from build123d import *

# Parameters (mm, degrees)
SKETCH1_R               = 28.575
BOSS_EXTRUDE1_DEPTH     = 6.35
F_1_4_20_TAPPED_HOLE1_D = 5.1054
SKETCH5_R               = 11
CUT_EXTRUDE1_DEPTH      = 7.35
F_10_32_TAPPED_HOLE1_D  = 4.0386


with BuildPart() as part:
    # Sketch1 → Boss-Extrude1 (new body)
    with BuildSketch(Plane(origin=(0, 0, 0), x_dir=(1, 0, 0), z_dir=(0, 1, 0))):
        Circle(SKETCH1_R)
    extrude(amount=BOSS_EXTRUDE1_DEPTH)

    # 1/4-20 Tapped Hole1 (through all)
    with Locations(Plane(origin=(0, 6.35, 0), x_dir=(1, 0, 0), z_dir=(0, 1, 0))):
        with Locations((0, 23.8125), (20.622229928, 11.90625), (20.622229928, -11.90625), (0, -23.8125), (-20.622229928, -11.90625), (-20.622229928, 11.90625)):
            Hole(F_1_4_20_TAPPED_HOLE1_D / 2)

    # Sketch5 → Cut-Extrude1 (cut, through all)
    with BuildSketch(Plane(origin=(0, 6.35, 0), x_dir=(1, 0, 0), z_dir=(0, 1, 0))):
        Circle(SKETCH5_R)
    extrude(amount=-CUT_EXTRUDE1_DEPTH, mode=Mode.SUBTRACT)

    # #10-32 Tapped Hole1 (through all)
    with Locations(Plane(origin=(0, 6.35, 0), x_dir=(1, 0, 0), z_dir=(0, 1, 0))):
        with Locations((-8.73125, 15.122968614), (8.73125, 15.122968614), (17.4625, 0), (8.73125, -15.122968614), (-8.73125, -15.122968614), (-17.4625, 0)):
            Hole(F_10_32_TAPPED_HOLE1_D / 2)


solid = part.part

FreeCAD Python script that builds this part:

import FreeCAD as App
import Part
import Sketcher
Q = App.Units.Quantity

doc = App.newDocument("Part")
params = doc.addObject("Spreadsheet::Sheet", "Params")
for row, (alias, value) in enumerate([
    ("sketch1_diameter", "2.25 in"),
    ("pad1_length", "0.25 in"),
    ("sketch2_diameter", "0.201 in"),
    ("hole_diameter", "0.201 in"),
    ("sketch4_diameter", "0.159 in"),
    ("hole2_diameter", "0.159 in"),
], start=1):
    params.set(f"A{row}", alias)
    params.set(f"B{row}", "=" + value)
    params.setAlias(f"B{row}", alias)

body = doc.addObject("PartDesign::Body", "Body")

sketch1 = doc.addObject("Sketcher::SketchObject", "Sketch")
body.addObject(sketch1)
sketch1.AttachmentSupport = (doc.XZ_Plane, [""])
sketch1.MapMode = "FlatFace"
sketch1.addGeometry(Part.Circle(App.Vector(0, 0, 0), App.Vector(0, 0, 1), 29), False)
sketch1.addConstraint([
    Sketcher.Constraint("Coincident", 0, 3, -1, 1),
    Sketcher.Constraint("Diameter", 0, Q("2.25 in")),
])
sketch1.setExpression("Constraints[1]", "Params.sketch1_diameter")
pad1 = doc.addObject("PartDesign::Pad", "Pad")
body.addObject(pad1)
pad1.Profile = sketch1
pad1.setExpression("Length", "Params.pad1_length")
pad1.Reversed = True

sketch2 = doc.addObject("Sketcher::SketchObject", "Sketch001")
body.addObject(sketch2)
sketch2.AttachmentSupport = (doc.XZ_Plane, [""])
sketch2.MapMode = "FlatFace"
sketch2.AttachmentOffset = App.Placement(App.Vector(0, 0, -0.25 * 25.4), App.Rotation())
sketch2.addGeometry([
    Part.Circle(App.Vector(0, -23.8, 0), App.Vector(0, 0, 1), 2.6),
    Part.Circle(App.Vector(20.6, -11.9, 0), App.Vector(0, 0, 1), 2.6),
    Part.Circle(App.Vector(20.6, 11.9, 0), App.Vector(0, 0, 1), 2.6),
    Part.Circle(App.Vector(0, 23.8, 0), App.Vector(0, 0, 1), 2.6),
    Part.Circle(App.Vector(-20.6, 11.9, 0), App.Vector(0, 0, 1), 2.6),
    Part.Circle(App.Vector(-20.6, -11.9, 0), App.Vector(0, 0, 1), 2.6),
], False)
sketch2.addConstraint([
    Sketcher.Constraint("Equal", 0, 1),
    Sketcher.Constraint("Equal", 1, 2),
    Sketcher.Constraint("Equal", 2, 3),
    Sketcher.Constraint("Equal", 3, 4),
    Sketcher.Constraint("Equal", 4, 5),
    Sketcher.Constraint("Symmetric", 0, 3, 3, 3, -1, 1),
    Sketcher.Constraint("Symmetric", 1, 3, 4, 3, -1, 1),
    Sketcher.Constraint("Symmetric", 2, 3, 5, 3, -1, 1),
    Sketcher.Constraint("Symmetric", 2, 3, 4, 3, -2),
    Sketcher.Constraint("PointOnObject", 0, 3, -2),
    Sketcher.Constraint("Diameter", 0, Q("0.201 in")),
    Sketcher.Constraint("DistanceY", 0, 3, -1, 1, Q("0.9375 in")),
    Sketcher.Constraint("DistanceY", 1, 3, -1, 1, Q("0.46875 in")),
    Sketcher.Constraint("DistanceX", -1, 1, 1, 3, Q("20.62223 mm")),
])
sketch2.setExpression("Constraints[10]", "Params.sketch2_diameter")
doc.recompute()
hole = doc.addObject("PartDesign::Hole", "Hole")
body.addObject(hole)
hole.Profile = sketch2
hole.ThreadType = "None"
hole.setExpression("Diameter", "Params.hole_diameter")
hole.DepthType = "ThroughAll"
hole.Reversed = True

sketch3 = doc.addObject("Sketcher::SketchObject", "Sketch002")
body.addObject(sketch3)
sketch3.AttachmentSupport = (doc.XZ_Plane, [""])
sketch3.MapMode = "FlatFace"
sketch3.AttachmentOffset = App.Placement(App.Vector(0, 0, -0.25 * 25.4), App.Rotation())
sketch3.addGeometry(Part.Circle(App.Vector(0, 0, 0), App.Vector(0, 0, 1), 11), False)
sketch3.addConstraint([
    Sketcher.Constraint("Coincident", 0, 3, -1, 1),
    Sketcher.Constraint("Diameter", 0, Q("22 mm")),
])
pocket1 = doc.addObject("PartDesign::Pocket", "Pocket")
body.addObject(pocket1)
pocket1.Profile = sketch3
pocket1.Type = "ThroughAll"
pocket1.Reversed = True

sketch4 = doc.addObject("Sketcher::SketchObject", "Sketch003")
body.addObject(sketch4)
sketch4.AttachmentSupport = (doc.XZ_Plane, [""])
sketch4.MapMode = "FlatFace"
sketch4.AttachmentOffset = App.Placement(App.Vector(0, 0, -0.25 * 25.4), App.Rotation())
sketch4.addGeometry([
    Part.Circle(App.Vector(-8.7, -15.1, 0), App.Vector(0, 0, 1), 2),
    Part.Circle(App.Vector(8.7, -15.1, 0), App.Vector(0, 0, 1), 2),
    Part.Circle(App.Vector(17.5, 0, 0), App.Vector(0, 0, 1), 2),
    Part.Circle(App.Vector(8.7, 15.1, 0), App.Vector(0, 0, 1), 2),
    Part.Circle(App.Vector(-8.7, 15.1, 0), App.Vector(0, 0, 1), 2),
    Part.Circle(App.Vector(-17.5, 0, 0), App.Vector(0, 0, 1), 2),
], False)
sketch4.addConstraint([
    Sketcher.Constraint("Equal", 0, 1),
    Sketcher.Constraint("Equal", 1, 2),
    Sketcher.Constraint("Equal", 2, 3),
    Sketcher.Constraint("Equal", 3, 4),
    Sketcher.Constraint("Equal", 4, 5),
    Sketcher.Constraint("Symmetric", 0, 3, 3, 3, -1, 1),
    Sketcher.Constraint("Symmetric", 1, 3, 4, 3, -1, 1),
    Sketcher.Constraint("Symmetric", 2, 3, 5, 3, -1, 1),
    Sketcher.Constraint("Symmetric", 0, 3, 1, 3, -2),
    Sketcher.Constraint("PointOnObject", 2, 3, -1),
    Sketcher.Constraint("Diameter", 0, Q("0.159 in")),
    Sketcher.Constraint("DistanceX", 0, 3, -1, 1, Q("0.34375 in")),
    Sketcher.Constraint("DistanceX", -1, 1, 2, 3, Q("0.6875 in")),
    Sketcher.Constraint("DistanceY", 0, 3, -1, 1, Q("15.122969 mm")),
])
sketch4.setExpression("Constraints[10]", "Params.sketch4_diameter")
doc.recompute()
hole2 = doc.addObject("PartDesign::Hole", "Hole001")
body.addObject(hole2)
hole2.Profile = sketch4
hole2.ThreadType = "None"
hole2.setExpression("Diameter", "Params.hole2_diameter")
hole2.DepthType = "ThroughAll"
hole2.Reversed = True

doc.recompute()
